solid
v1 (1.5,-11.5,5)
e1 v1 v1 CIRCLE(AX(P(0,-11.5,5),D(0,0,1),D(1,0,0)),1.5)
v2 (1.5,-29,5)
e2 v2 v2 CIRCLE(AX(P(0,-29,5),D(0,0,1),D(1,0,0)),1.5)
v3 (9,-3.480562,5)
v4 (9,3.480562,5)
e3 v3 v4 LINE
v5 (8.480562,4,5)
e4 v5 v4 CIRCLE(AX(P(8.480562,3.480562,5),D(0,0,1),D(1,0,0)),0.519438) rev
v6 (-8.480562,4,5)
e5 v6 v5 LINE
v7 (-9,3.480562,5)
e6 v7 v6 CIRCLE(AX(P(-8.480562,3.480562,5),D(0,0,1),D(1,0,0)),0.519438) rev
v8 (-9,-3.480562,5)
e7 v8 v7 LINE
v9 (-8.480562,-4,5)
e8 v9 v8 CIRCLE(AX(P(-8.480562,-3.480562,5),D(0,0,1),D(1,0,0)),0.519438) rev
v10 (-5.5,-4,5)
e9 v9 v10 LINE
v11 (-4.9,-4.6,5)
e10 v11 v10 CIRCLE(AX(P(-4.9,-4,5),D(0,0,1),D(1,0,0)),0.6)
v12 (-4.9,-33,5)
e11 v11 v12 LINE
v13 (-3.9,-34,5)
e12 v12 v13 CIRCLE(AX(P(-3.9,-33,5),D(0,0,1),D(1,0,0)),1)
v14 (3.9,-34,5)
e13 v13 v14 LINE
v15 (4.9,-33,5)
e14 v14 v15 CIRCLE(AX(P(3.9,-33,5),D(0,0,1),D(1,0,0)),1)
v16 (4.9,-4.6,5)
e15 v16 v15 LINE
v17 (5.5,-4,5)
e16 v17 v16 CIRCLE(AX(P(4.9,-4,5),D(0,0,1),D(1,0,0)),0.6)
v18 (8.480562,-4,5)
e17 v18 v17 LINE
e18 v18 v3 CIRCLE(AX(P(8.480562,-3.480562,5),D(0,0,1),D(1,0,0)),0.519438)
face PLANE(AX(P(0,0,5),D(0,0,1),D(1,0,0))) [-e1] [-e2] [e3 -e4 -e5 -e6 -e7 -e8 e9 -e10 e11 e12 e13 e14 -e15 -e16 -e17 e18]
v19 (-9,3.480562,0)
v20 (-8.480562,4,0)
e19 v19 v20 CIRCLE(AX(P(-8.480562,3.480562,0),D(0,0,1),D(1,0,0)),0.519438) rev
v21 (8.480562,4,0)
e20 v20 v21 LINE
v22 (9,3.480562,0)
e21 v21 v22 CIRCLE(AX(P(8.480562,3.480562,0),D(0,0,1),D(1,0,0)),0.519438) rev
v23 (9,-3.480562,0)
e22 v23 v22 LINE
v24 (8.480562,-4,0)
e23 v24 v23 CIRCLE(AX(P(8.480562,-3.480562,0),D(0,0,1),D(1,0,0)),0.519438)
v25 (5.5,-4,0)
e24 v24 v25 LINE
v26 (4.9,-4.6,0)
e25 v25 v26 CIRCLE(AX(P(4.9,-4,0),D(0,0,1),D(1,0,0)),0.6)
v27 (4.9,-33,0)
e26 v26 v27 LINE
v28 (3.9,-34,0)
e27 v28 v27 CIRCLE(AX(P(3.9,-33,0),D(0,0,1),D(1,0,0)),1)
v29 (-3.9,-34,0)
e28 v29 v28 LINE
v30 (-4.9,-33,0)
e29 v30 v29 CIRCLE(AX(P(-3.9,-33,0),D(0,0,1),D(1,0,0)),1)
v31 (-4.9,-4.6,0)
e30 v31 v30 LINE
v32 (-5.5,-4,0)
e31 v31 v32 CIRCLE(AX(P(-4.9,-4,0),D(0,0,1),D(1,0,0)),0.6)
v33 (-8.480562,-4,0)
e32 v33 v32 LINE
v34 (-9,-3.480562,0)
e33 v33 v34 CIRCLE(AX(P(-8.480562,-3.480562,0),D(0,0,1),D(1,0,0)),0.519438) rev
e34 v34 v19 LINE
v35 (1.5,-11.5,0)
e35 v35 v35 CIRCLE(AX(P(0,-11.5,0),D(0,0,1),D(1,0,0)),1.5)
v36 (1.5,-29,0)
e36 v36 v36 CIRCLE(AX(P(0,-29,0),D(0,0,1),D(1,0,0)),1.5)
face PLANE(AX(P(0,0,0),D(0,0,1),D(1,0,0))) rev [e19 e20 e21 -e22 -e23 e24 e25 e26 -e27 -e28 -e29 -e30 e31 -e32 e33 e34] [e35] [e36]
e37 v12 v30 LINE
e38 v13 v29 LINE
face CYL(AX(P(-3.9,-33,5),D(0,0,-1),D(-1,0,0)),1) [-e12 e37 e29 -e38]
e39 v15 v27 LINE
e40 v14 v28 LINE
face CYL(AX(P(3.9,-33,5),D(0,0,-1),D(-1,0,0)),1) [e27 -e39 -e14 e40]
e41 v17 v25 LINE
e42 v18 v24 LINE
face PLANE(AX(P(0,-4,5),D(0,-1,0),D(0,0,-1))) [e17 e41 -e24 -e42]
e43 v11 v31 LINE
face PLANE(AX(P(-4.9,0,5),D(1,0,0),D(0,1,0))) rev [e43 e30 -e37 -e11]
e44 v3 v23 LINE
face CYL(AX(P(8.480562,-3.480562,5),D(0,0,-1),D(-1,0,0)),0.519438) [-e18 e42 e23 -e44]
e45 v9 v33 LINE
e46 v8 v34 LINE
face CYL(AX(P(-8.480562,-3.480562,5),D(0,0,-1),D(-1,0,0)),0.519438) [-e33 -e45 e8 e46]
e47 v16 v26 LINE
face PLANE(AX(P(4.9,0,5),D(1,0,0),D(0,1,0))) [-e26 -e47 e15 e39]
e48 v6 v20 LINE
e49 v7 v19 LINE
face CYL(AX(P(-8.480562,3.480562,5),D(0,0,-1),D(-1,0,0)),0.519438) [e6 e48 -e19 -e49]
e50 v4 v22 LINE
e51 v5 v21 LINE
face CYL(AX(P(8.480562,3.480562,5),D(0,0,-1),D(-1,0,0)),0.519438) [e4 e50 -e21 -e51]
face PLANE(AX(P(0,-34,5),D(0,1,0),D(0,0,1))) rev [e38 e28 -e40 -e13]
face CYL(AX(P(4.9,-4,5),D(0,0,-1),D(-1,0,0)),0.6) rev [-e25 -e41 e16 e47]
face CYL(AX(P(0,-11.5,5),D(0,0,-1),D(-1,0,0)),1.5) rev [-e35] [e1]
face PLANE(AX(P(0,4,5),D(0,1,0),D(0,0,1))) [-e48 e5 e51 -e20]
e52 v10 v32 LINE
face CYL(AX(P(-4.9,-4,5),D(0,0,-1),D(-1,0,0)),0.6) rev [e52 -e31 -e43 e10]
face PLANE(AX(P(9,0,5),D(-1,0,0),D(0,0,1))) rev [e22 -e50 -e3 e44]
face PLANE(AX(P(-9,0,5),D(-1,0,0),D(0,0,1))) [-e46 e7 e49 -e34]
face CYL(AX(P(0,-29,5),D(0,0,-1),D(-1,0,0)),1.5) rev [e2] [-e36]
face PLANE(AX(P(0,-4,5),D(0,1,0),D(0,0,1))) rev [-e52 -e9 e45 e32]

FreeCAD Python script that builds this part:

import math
import FreeCAD as App
import Part
import Sketcher

V = App.Vector

doc = App.newDocument("Part")
body = doc.addObject("PartDesign::Body", "Body")

# Sketch on XY plane
sketch1 = body.newObject("Sketcher::SketchObject", "Sketch")
sketch1.AttachmentSupport = (doc.getObject("XY_Plane"), [""])
sketch1.MapMode = "FlatFace"
sketch1.addGeometry([
    Part.LineSegment(V(-4.9, -4.6, 0), V(-4.9, -33, 0)),  # 0
    Part.ArcOfCircle(Part.Circle(V(-3.9, -33, 0), V(0, 0, 1), 1), math.radians(-180), math.radians(-90)),  # 1
    Part.LineSegment(V(-3.9, -34, 0), V(3.9, -34, 0)),  # 2
    Part.ArcOfCircle(Part.Circle(V(3.9, -33, 0), V(0, 0, 1), 1), math.radians(-90), math.radians(0)),  # 3
    Part.LineSegment(V(4.9, -33, 0), V(4.9, -4.6, 0)),  # 4
    Part.ArcOfCircle(Part.Circle(V(4.9, -4, 0), V(0, 0, 1), 0.6), math.radians(0), math.radians(270)),  # 5
    Part.LineSegment(V(5.5, -4, 0), V(8.5, -4, 0)),  # 6
    Part.ArcOfCircle(Part.Circle(V(8.5, -3.5, 0), V(0, 0, 1), 0.5), math.radians(-90), math.radians(0)),  # 7
    Part.LineSegment(V(9, -3.5, 0), V(9, 3.5, 0)),  # 8
    Part.ArcOfCircle(Part.Circle(V(8.5, 3.5, 0), V(0, 0, 1), 0.5), math.radians(0), math.radians(90)),  # 9
    Part.LineSegment(V(8.5, 4, 0), V(-8.5, 4, 0)),  # 10
    Part.ArcOfCircle(Part.Circle(V(-8.5, 3.5, 0), V(0, 0, 1), 0.5), math.radians(90), math.radians(180)),  # 11
    Part.LineSegment(V(-9, 3.5, 0), V(-9, -3.5, 0)),  # 12
    Part.ArcOfCircle(Part.Circle(V(-8.5, -3.5, 0), V(0, 0, 1), 0.5), math.radians(180), math.radians(270)),  # 13
    Part.LineSegment(V(-8.5, -4, 0), V(-5.5, -4, 0)),  # 14
    Part.ArcOfCircle(Part.Circle(V(-4.9, -4, 0), V(0, 0, 1), 0.6), math.radians(-90), math.radians(180)),  # 15
    Part.Circle(V(0, -29, 0), V(0, 0, 1), 1.5),  # 16
    Part.Circle(V(0, -11.5, 0), V(0, 0, 1), 1.5),  # 17
], False)
sketch1.addConstraint([
    Sketcher.Constraint("Tangent", 0, 2, 1, 1),
    Sketcher.Constraint("Tangent", 1, 2, 2, 1),
    Sketcher.Constraint("Tangent", 2, 2, 3, 1),
    Sketcher.Constraint("Tangent", 3, 2, 4, 1),
    Sketcher.Constraint("Coincident", 4, 2, 5, 2),
    Sketcher.Constraint("Coincident", 5, 1, 6, 1),
    Sketcher.Constraint("Tangent", 6, 2, 7, 1),
    Sketcher.Constraint("Tangent", 7, 2, 8, 1),
    Sketcher.Constraint("Tangent", 8, 2, 9, 1),
    Sketcher.Constraint("Tangent", 9, 2, 10, 1),
    Sketcher.Constraint("Tangent", 10, 2, 11, 1),
    Sketcher.Constraint("Tangent", 11, 2, 12, 1),
    Sketcher.Constraint("Tangent", 12, 2, 13, 1),
    Sketcher.Constraint("Tangent", 13, 2, 14, 1),
    Sketcher.Constraint("Coincident", 14, 2, 15, 2),
    Sketcher.Constraint("Coincident", 15, 1, 0, 1),
    Sketcher.Constraint("Vertical", 0),
    Sketcher.Constraint("Horizontal", 2),
    Sketcher.Constraint("Vertical", 4),
    Sketcher.Constraint("Horizontal", 6),
    Sketcher.Constraint("Vertical", 8),
    Sketcher.Constraint("Horizontal", 10),
    Sketcher.Constraint("Vertical", 12),
    Sketcher.Constraint("Horizontal", 14),
    Sketcher.Constraint("Equal", 1, 3),
    Sketcher.Constraint("Equal", 7, 9),
    Sketcher.Constraint("Equal", 9, 11),
    Sketcher.Constraint("Equal", 11, 13),
    Sketcher.Constraint("Equal", 5, 15),
    Sketcher.Constraint("Equal", 16, 17),
    Sketcher.Constraint("Symmetric", 7, 3, 11, 3, -1, 1),
    Sketcher.Constraint("Symmetric", 5, 3, 15, 3, -2),
    Sketcher.Constraint("PointOnObject", 16, 3, -2),
    Sketcher.Constraint("PointOnObject", 17, 3, -2),
    Sketcher.Constraint("Horizontal", 7, 3, 13, 3),
    Sketcher.Constraint("Horizontal", 15, 3, 5, 1),
    Sketcher.Constraint("Vertical", 15, 3, 0, 2),
    Sketcher.Constraint("Vertical", 5, 3, 3, 2),
    Sketcher.Constraint("Diameter", 16, 3.0),
    Sketcher.Constraint("Radius", 1, 1.0),
    Sketcher.Constraint("Radius", 5, 0.6),
    Sketcher.Constraint("DistanceX", 2, 1, 2, 2, 7.8),
    Sketcher.Constraint("DistanceY", 0, 2, 0, 1, 28.4),
    Sketcher.Constraint("DistanceY", 1, 3, -1, 1, 33.0),
    Sketcher.Constraint("DistanceY", 16, 3, -1, 1, 29.0),
    Sketcher.Constraint("DistanceX", -1, 1, 7, 2, 9.0),
    Sketcher.Constraint("DistanceY", 17, 3, -1, 1, 11.5),
    Sketcher.Constraint("Radius", 7, 0.519438),
])
pad1 = body.newObject("PartDesign::Pad", "Pad")
pad1.Profile = sketch1
pad1.Length = 5

doc.recompute()
